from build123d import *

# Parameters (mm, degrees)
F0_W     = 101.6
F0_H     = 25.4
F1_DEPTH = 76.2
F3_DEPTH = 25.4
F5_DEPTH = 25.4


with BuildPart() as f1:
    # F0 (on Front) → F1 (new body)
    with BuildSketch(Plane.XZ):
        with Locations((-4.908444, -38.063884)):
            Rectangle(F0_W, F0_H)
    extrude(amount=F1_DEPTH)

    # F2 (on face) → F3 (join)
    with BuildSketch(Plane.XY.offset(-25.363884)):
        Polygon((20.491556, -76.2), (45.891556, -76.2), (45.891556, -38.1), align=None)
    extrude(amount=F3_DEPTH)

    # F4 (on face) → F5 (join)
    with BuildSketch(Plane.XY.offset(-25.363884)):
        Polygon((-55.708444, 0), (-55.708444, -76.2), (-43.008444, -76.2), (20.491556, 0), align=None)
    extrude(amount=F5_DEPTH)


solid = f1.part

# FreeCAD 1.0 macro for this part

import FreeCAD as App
import Part
import Sketcher

V = App.Vector
Q = App.Units.Quantity

doc = App.newDocument("Part")
body = doc.addObject("PartDesign::Body", "Body")

sketch1 = body.newObject("Sketcher::SketchObject", "Sketch")
sketch1.AttachmentSupport = (doc.getObject("XZ_Plane"), [""])
sketch1.MapMode = "FlatFace"
sketch1.addGeometry([
    Part.LineSegment(V(-55.708444, -25.363884, 0), V(-55.708444, -50.763884, 0)),
    Part.LineSegment(V(-55.708444, -50.763884, 0), V(45.891556, -50.763884, 0)),
    Part.LineSegment(V(45.891556, -50.763884, 0), V(45.891556, -25.363884, 0)),
    Part.LineSegment(V(45.891556, -25.363884, 0), V(-55.708444, -25.363884, 0)),
], False)
sketch1.addConstraint([
    Sketcher.Constraint("Coincident", 0, 2, 1, 1),
    Sketcher.Constraint("Coincident", 1, 2, 2, 1),
    Sketcher.Constraint("Coincident", 2, 2, 3, 1),
    Sketcher.Constraint("Coincident", 3, 2, 0, 1),
    Sketcher.Constraint("Vertical", 0),
    Sketcher.Constraint("Horizontal", 1),
    Sketcher.Constraint("Vertical", 2),
    Sketcher.Constraint("Horizontal", 3),
    Sketcher.Constraint("DistanceX", 1, 1, 1, 2, Q("4 in")),
    Sketcher.Constraint("DistanceY", 0, 2, 0, 1, Q("1 in")),
    Sketcher.Constraint("DistanceX", 0, 2, -1, 1, Q("55.708444 mm")),
    Sketcher.Constraint("DistanceY", 0, 2, -1, 1, Q("50.763884 mm")),
])
pad1 = body.newObject("PartDesign::Pad", "Pad")
pad1.Profile = sketch1
pad1.Length = Q("3 in")

sketch2 = body.newObject("Sketcher::SketchObject", "Sketch001")
sketch2.AttachmentSupport = (doc.getObject("XY_Plane"), [""])
sketch2.MapMode = "FlatFace"
sketch2.AttachmentOffset = App.Placement(V(0, 0, -25.363884), App.Rotation())
sketch2.addGeometry([
    Part.LineSegment(V(20.491556, -76.2, 0), V(45.891556, -76.2, 0)),
    Part.LineSegment(V(45.891556, -76.2, 0), V(45.891556, -38.1, 0)),
    Part.LineSegment(V(45.891556, -38.1, 0), V(20.491556, -76.2, 0)),
], False)
sketch2.addConstraint([
    Sketcher.Constraint("Coincident", 0, 2, 1, 1),
    Sketcher.Constraint("Coincident", 1, 2, 2, 1),
    Sketcher.Constraint("Coincident", 2, 2, 0, 1),
    Sketcher.Constraint("Horizontal", 0),
    Sketcher.Constraint("Vertical", 1),
    Sketcher.Constraint("DistanceX", 0, 1, 0, 2, Q("1 in")),
    Sketcher.Constraint("DistanceY", 1, 1, 1, 2, Q("1.5 in")),
    Sketcher.Constraint("DistanceY", 0, 2, -1, 1, Q("3 in")),
    Sketcher.Constraint("DistanceX", -1, 1, 0, 2, Q("45.891556 mm")),
])
pad2 = body.newObject("PartDesign::Pad", "Pad001")
pad2.Profile = sketch2
pad2.Length = Q("1 in")

sketch3 = body.newObject("Sketcher::SketchObject", "Sketch002")
sketch3.AttachmentSupport = (doc.getObject("XY_Plane"), [""])
sketch3.MapMode = "FlatFace"
sketch3.AttachmentOffset = App.Placement(V(0, 0, -25.363884), App.Rotation())
sketch3.addGeometry([
    Part.LineSegment(V(-55.708444, 0, 0), V(-55.708444, -76.2, 0)),
    Part.LineSegment(V(-55.708444, -76.2, 0), V(-43.008444, -76.2, 0)),
    Part.LineSegment(V(-43.008444, -76.2, 0), V(20.491556, 0, 0)),
    Part.LineSegment(V(20.491556, 0, 0), V(-55.708444, 0, 0)),
], False)
sketch3.addConstraint([
    Sketcher.Constraint("Coincident", 0, 2, 1, 1),
    Sketcher.Constraint("Coincident", 1, 2, 2, 1),
    Sketcher.Constraint("Coincident", 2, 2, 3, 1),
    Sketcher.Constraint("Coincident", 3, 2, 0, 1),
    Sketcher.Constraint("Vertical", 0),
    Sketcher.Constraint("Horizontal", 1),
    Sketcher.Constraint("Horizontal", 3),
    Sketcher.Constraint("PointOnObject", 2, 2, -1),
    Sketcher.Constraint("Equal", 3, 0),
    Sketcher.Constraint("DistanceX", 3, 2, 3, 1, Q("3 in")),
    Sketcher.Constraint("DistanceX", 1, 1, 1, 2, Q("0.5 in")),
    Sketcher.Constraint("DistanceX", 0, 2, -1, 1, Q("55.708444 mm")),
])
pad3 = body.newObject("PartDesign::Pad", "Pad002")
pad3.Profile = sketch3
pad3.Length = Q("1 in")

doc.recompute()
